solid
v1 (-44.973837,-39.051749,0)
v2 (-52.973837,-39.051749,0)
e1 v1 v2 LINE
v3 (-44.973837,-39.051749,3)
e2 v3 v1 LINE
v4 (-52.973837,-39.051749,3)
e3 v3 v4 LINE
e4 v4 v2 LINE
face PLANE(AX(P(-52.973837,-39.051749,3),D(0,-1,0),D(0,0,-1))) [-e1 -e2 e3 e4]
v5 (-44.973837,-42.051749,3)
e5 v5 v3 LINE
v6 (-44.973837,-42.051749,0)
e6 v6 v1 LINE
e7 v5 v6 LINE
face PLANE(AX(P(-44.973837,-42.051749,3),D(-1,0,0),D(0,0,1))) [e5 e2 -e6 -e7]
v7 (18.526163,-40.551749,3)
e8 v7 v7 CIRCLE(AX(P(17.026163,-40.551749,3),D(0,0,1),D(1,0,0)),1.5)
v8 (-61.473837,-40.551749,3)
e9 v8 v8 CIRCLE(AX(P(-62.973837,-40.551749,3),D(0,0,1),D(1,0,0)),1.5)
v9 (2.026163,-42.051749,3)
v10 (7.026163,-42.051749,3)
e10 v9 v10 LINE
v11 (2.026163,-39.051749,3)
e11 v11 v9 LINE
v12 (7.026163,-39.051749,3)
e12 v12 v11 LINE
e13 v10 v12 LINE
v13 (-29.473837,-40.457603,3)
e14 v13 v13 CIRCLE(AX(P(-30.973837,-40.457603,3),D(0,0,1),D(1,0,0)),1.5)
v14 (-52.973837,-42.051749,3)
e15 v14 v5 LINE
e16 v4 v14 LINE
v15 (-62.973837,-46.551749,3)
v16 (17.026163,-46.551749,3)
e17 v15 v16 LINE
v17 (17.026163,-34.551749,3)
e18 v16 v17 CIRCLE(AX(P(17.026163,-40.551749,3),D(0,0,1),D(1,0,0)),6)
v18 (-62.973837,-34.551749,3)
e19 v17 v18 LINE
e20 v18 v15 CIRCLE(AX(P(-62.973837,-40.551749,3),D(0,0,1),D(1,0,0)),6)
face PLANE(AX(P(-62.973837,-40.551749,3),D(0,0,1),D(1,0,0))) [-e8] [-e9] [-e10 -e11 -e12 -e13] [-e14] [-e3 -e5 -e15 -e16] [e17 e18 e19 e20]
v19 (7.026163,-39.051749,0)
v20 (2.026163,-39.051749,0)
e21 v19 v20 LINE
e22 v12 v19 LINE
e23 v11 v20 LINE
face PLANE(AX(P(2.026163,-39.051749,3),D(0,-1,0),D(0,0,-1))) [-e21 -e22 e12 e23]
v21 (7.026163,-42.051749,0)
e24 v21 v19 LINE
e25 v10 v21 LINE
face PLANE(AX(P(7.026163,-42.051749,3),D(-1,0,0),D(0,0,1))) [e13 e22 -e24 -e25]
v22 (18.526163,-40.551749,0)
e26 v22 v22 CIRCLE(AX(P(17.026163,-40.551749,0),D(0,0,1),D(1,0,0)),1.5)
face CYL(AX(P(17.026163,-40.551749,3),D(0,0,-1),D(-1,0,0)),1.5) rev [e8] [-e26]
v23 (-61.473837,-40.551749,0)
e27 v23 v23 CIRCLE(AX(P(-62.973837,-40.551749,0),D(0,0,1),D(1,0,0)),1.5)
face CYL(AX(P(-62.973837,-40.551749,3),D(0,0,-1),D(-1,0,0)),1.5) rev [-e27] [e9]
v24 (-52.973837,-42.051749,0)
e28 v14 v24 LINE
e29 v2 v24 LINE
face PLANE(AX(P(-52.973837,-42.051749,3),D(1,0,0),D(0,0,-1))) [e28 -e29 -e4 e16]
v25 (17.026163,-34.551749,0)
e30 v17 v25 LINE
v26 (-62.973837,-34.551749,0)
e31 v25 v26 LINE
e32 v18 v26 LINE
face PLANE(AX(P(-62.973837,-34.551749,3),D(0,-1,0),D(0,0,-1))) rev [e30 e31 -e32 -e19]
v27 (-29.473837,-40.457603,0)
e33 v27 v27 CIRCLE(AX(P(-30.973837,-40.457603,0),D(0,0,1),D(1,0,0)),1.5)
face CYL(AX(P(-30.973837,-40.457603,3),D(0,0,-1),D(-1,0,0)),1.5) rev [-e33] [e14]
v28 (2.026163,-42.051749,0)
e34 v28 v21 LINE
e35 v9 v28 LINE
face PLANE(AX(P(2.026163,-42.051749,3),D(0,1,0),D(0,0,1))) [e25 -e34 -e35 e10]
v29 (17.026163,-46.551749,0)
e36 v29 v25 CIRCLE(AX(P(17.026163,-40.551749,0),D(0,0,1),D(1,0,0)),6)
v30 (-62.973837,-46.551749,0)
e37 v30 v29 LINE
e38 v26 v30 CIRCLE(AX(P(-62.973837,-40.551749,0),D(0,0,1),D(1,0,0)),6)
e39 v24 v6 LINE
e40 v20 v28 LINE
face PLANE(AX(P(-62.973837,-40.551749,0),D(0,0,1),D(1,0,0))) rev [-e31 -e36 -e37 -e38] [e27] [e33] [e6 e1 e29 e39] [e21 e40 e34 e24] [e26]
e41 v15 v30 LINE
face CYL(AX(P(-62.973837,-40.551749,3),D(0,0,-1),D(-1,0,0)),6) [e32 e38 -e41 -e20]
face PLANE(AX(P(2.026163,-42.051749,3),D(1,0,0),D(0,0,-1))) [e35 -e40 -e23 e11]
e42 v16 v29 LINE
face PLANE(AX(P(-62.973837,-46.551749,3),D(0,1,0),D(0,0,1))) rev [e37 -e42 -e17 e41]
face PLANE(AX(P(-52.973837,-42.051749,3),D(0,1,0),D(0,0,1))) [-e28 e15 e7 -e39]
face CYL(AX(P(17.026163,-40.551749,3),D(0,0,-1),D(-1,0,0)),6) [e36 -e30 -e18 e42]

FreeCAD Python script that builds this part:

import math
import FreeCAD as App
import Part
import Sketcher


def add_polygon(sketch, points):
    """Adds a closed chain of lines whose ends are joined by coincident constraints."""
    first, n = sketch.GeometryCount, len(points)
    for a, b in zip(points, points[1:] + points[:1]):
        sketch.addGeometry(Part.LineSegment(App.Vector(*a, 0), App.Vector(*b, 0)), False)
    for i in range(n):
        sketch.addConstraint(Sketcher.Constraint("Coincident", first + i, 2, first + (i + 1) % n, 1))

doc = App.newDocument("Part")
body = doc.addObject("PartDesign::Body", "Body")

# Sketch on XY plane
sketch1 = doc.addObject("Sketcher::SketchObject", "Sketch")
body.addObject(sketch1)
sketch1.AttachmentSupport = (doc.XY_Plane, [""])
sketch1.MapMode = "FlatFace"
sketch1.addGeometry(Part.LineSegment(App.Vector(17, -34.6, 0), App.Vector(-63, -34.6, 0)), False)  # 0
sketch1.addGeometry(Part.ArcOfCircle(Part.Circle(App.Vector(-63, -40.6, 0), App.Vector(0, 0, 1), 6), math.radians(90), math.radians(270)), False)  # 1
sketch1.addGeometry(Part.LineSegment(App.Vector(-63, -46.6, 0), App.Vector(17, -46.6, 0)), False)  # 2
sketch1.addGeometry(Part.ArcOfCircle(Part.Circle(App.Vector(17, -40.6, 0), App.Vector(0, 0, 1), 6), math.radians(-90), math.radians(90)), False)  # 3
sketch1.addGeometry(Part.Circle(App.Vector(17, -40.6, 0), App.Vector(0, 0, 1), 1.5), False)  # 4
add_polygon(sketch1, [(2, -42.1), (2, -39.1), (7, -39.1), (7, -42.1)])  # lines 5-8
add_polygon(sketch1, [(-53, -42.1), (-53, -39.1), (-45, -39.1), (-45, -42.1)])  # lines 9-12
sketch1.addGeometry(Part.Circle(App.Vector(-63, -40.6, 0), App.Vector(0, 0, 1), 1.5), False)  # 13
sketch1.addGeometry(Part.Circle(App.Vector(-31, -40.5, 0), App.Vector(0, 0, 1), 1.5), False)  # 14
sketch1.addConstraint([
    Sketcher.Constraint("Tangent", 0, 2, 1, 1),
    Sketcher.Constraint("Tangent", 1, 2, 2, 1),
    Sketcher.Constraint("Tangent", 2, 2, 3, 1),
    Sketcher.Constraint("Tangent", 3, 2, 0, 1),
    Sketcher.Constraint("Horizontal", 0),
    Sketcher.Constraint("Horizontal", 2),
    Sketcher.Constraint("Vertical", 5),
    Sketcher.Constraint("Horizontal", 6),
    Sketcher.Constraint("Vertical", 7),
    Sketcher.Constraint("Horizontal", 8),
    Sketcher.Constraint("Vertical", 9),
    Sketcher.Constraint("Horizontal", 10),
    Sketcher.Constraint("Vertical", 11),
    Sketcher.Constraint("Horizontal", 12),
    Sketcher.Constraint("Coincident", 4, 3, 3, 3),
    Sketcher.Constraint("Coincident", 13, 3, 1, 3),
    Sketcher.Constraint("Equal", 4, 13),
    Sketcher.Constraint("Equal", 13, 14),
    Sketcher.Constraint("Horizontal", 6, 2, 9, 2),
    Sketcher.Constraint("Horizontal", 8, 2, 11, 2),
    Sketcher.Constraint("Diameter", 4, 3.0),
    Sketcher.Constraint("Radius", 1, 6.0),
    Sketcher.Constraint("DistanceX", 0, 2, 0, 1, 80.0),
    Sketcher.Constraint("DistanceX", 6, 1, 6, 2, 5.0),
    Sketcher.Constraint("DistanceX", 10, 1, 10, 2, 8.0),
    Sketcher.Constraint("DistanceY", 5, 1, 5, 2, 3.0),
    Sketcher.Constraint("DistanceX", 1, 3, 14, 3, 32.0),
    Sketcher.Constraint("DistanceX", 5, 2, 3, 3, 15.0),
    Sketcher.Constraint("DistanceX", 1, 3, 9, 2, 10.0),
    Sketcher.Constraint("DistanceY", 3, 3, 5, 2, 1.5),
    Sketcher.Constraint("DistanceY", 1, 3, -1, 1, 40.551749),
    Sketcher.Constraint("DistanceX", 1, 3, -1, 1, 62.973837),
    Sketcher.Constraint("DistanceY", 14, 3, -1, 1, 40.457603),
])
pad1 = doc.addObject("PartDesign::Pad", "Pad")
body.addObject(pad1)
pad1.Profile = sketch1
pad1.Length = 3

doc.recompute()
